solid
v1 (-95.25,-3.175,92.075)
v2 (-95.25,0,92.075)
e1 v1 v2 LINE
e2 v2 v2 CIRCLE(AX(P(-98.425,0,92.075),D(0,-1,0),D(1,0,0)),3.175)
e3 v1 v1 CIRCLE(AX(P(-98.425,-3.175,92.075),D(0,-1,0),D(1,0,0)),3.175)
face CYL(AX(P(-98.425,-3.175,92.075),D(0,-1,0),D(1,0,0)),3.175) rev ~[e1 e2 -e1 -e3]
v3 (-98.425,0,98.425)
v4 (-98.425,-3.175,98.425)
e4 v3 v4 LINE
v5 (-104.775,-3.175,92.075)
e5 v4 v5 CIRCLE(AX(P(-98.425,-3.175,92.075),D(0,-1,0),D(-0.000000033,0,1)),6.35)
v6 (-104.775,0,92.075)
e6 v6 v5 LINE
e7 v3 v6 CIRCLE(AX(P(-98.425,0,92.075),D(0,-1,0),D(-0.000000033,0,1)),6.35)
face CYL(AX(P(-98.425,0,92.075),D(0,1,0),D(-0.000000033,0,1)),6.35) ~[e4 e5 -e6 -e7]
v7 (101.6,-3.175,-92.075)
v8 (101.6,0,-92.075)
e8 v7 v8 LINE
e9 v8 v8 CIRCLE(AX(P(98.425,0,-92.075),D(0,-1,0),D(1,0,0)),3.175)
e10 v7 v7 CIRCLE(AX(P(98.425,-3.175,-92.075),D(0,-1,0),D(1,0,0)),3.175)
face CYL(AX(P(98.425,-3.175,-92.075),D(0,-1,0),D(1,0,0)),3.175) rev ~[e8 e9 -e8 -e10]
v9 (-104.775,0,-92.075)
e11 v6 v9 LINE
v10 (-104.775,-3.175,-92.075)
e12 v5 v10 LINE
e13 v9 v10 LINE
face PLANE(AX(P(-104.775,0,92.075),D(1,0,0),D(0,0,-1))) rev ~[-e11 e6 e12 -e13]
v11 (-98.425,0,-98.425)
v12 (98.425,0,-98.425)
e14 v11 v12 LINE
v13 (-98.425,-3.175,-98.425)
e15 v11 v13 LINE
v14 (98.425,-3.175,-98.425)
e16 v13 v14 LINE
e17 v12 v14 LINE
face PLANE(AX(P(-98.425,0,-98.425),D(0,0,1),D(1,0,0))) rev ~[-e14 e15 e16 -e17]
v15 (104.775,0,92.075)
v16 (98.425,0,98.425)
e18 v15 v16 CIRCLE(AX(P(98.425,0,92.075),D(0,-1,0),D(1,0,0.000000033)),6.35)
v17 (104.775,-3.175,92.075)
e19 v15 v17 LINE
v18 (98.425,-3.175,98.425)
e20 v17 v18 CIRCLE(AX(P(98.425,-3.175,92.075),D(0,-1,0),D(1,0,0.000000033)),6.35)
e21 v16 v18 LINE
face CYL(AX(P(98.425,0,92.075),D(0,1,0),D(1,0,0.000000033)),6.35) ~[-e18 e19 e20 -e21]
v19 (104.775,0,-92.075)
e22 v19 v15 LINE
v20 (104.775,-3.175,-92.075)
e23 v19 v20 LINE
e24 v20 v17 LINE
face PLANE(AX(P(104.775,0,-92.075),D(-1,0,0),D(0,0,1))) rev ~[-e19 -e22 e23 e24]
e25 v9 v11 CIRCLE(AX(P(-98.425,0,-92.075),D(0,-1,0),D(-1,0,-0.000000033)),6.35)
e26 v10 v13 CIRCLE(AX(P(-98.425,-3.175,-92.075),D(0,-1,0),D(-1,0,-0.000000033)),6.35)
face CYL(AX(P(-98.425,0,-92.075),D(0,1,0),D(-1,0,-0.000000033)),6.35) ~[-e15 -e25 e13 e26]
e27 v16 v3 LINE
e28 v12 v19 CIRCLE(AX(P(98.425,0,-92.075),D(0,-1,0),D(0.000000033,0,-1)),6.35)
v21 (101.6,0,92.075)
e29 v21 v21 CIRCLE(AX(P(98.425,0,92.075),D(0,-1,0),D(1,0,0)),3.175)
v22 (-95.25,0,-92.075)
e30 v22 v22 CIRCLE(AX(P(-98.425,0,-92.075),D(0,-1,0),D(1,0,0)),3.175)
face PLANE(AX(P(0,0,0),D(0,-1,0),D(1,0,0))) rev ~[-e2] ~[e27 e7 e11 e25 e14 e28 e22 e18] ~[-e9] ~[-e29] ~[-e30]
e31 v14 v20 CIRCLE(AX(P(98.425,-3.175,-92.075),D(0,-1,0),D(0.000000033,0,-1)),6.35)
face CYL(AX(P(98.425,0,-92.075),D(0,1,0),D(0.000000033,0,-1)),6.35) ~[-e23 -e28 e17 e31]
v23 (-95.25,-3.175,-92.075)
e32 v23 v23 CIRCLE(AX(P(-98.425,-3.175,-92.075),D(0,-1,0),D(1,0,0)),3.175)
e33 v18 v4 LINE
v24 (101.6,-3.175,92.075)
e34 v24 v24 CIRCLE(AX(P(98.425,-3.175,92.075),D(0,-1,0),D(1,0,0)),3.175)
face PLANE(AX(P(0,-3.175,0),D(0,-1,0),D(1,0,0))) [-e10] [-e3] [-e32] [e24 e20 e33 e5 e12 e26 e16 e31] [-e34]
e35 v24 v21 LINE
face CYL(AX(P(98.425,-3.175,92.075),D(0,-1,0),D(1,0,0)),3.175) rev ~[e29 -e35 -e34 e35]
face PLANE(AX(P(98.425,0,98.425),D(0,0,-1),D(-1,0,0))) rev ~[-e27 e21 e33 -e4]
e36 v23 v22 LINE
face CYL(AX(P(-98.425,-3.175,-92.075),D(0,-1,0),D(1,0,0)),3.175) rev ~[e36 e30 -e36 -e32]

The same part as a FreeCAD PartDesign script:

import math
import FreeCAD as App
import Part
import Sketcher

V = App.Vector
Q = App.Units.Quantity

doc = App.newDocument("Part")
body = doc.addObject("PartDesign::Body", "Body")

# Sketch on XZ plane
sketch1 = body.newObject("Sketcher::SketchObject", "Sketch")
sketch1.AttachmentSupport = (doc.getObject("XZ_Plane"), [""])
sketch1.MapMode = "FlatFace"
sketch1.addGeometry([
    Part.LineSegment(V(98, 98, 0), V(-98, 98, 0)),  # 0
    Part.ArcOfCircle(Part.Circle(V(-98, 92, 0), V(0, 0, 1), 6), math.radians(90), math.radians(180)),  # 1
    Part.LineSegment(V(-105, 92, 0), V(-105, -92, 0)),  # 2
    Part.ArcOfCircle(Part.Circle(V(-98, -92, 0), V(0, 0, 1), 6), math.radians(-180), math.radians(-90)),  # 3
    Part.LineSegment(V(-98, -98, 0), V(98, -98, 0)),  # 4
    Part.ArcOfCircle(Part.Circle(V(98, -92, 0), V(0, 0, 1), 6), math.radians(-90), math.radians(0)),  # 5
    Part.LineSegment(V(105, -92, 0), V(105, 92, 0)),  # 6
    Part.ArcOfCircle(Part.Circle(V(98, 92, 0), V(0, 0, 1), 6), math.radians(0), math.radians(90)),  # 7
], False)
sketch1.addConstraint([
    Sketcher.Constraint("Tangent", 0, 2, 1, 1),
    Sketcher.Constraint("Tangent", 1, 2, 2, 1),
    Sketcher.Constraint("Tangent", 2, 2, 3, 1),
    Sketcher.Constraint("Tangent", 3, 2, 4, 1),
    Sketcher.Constraint("Tangent", 4, 2, 5, 1),
    Sketcher.Constraint("Tangent", 5, 2, 6, 1),
    Sketcher.Constraint("Tangent", 6, 2, 7, 1),
    Sketcher.Constraint("Tangent", 7, 2, 0, 1),
    Sketcher.Constraint("Horizontal", 0),
    Sketcher.Constraint("Vertical", 2),
    Sketcher.Constraint("Horizontal", 4),
    Sketcher.Constraint("Vertical", 6),
    Sketcher.Constraint("Equal", 1, 3),
    Sketcher.Constraint("Equal", 3, 5),
    Sketcher.Constraint("Equal", 5, 7),
    Sketcher.Constraint("Symmetric", 1, 3, 5, 3, -1, 1),
    Sketcher.Constraint("Radius", 1, Q("0.25 in")),
    Sketcher.Constraint("DistanceX", 1, 2, 7, 3, Q("8 in")),
    Sketcher.Constraint("DistanceY", 2, 2, 2, 1, Q("7.25 in")),
])
pad1 = body.newObject("PartDesign::Pad", "Pad")
pad1.Profile = sketch1
pad1.Length = Q("0.125 in")

# Sketch on XZ plane
sketch2 = body.newObject("Sketcher::SketchObject", "Sketch001")
sketch2.AttachmentSupport = (doc.getObject("XZ_Plane"), [""])
sketch2.MapMode = "FlatFace"
sketch2.AttachmentOffset = App.Placement(V(0, 0, 0.125 * 25.4), App.Rotation())
sketch2.addGeometry([
    Part.Circle(V(-98.4, 92.1, 0), V(0, 0, 1), 3.2),
    Part.Circle(V(98.4, 92.1, 0), V(0, 0, 1), 3.2),
    Part.Circle(V(98.4, -92.1, 0), V(0, 0, 1), 3.2),
    Part.Circle(V(-98.4, -92.1, 0), V(0, 0, 1), 3.2),
], False)
sketch2.addConstraint([
    Sketcher.Constraint("Equal", 0, 1),
    Sketcher.Constraint("Equal", 1, 2),
    Sketcher.Constraint("Equal", 2, 3),
    Sketcher.Constraint("Symmetric", 0, 3, 2, 3, -1, 1),
    Sketcher.Constraint("Symmetric", 1, 3, 3, 3, -1, 1),
    Sketcher.Constraint("Symmetric", 0, 3, 1, 3, -2),
    Sketcher.Constraint("Diameter", 0, Q("0.25 in")),
    Sketcher.Constraint("DistanceX", 0, 3, 1, 3, Q("7.75 in")),
    Sketcher.Constraint("DistanceY", 2, 3, 1, 3, Q("7.25 in")),
])
pocket1 = body.newObject("PartDesign::Pocket", "Pocket")
pocket1.Profile = sketch2
pocket1.Length = Q("1 in")

doc.recompute()
